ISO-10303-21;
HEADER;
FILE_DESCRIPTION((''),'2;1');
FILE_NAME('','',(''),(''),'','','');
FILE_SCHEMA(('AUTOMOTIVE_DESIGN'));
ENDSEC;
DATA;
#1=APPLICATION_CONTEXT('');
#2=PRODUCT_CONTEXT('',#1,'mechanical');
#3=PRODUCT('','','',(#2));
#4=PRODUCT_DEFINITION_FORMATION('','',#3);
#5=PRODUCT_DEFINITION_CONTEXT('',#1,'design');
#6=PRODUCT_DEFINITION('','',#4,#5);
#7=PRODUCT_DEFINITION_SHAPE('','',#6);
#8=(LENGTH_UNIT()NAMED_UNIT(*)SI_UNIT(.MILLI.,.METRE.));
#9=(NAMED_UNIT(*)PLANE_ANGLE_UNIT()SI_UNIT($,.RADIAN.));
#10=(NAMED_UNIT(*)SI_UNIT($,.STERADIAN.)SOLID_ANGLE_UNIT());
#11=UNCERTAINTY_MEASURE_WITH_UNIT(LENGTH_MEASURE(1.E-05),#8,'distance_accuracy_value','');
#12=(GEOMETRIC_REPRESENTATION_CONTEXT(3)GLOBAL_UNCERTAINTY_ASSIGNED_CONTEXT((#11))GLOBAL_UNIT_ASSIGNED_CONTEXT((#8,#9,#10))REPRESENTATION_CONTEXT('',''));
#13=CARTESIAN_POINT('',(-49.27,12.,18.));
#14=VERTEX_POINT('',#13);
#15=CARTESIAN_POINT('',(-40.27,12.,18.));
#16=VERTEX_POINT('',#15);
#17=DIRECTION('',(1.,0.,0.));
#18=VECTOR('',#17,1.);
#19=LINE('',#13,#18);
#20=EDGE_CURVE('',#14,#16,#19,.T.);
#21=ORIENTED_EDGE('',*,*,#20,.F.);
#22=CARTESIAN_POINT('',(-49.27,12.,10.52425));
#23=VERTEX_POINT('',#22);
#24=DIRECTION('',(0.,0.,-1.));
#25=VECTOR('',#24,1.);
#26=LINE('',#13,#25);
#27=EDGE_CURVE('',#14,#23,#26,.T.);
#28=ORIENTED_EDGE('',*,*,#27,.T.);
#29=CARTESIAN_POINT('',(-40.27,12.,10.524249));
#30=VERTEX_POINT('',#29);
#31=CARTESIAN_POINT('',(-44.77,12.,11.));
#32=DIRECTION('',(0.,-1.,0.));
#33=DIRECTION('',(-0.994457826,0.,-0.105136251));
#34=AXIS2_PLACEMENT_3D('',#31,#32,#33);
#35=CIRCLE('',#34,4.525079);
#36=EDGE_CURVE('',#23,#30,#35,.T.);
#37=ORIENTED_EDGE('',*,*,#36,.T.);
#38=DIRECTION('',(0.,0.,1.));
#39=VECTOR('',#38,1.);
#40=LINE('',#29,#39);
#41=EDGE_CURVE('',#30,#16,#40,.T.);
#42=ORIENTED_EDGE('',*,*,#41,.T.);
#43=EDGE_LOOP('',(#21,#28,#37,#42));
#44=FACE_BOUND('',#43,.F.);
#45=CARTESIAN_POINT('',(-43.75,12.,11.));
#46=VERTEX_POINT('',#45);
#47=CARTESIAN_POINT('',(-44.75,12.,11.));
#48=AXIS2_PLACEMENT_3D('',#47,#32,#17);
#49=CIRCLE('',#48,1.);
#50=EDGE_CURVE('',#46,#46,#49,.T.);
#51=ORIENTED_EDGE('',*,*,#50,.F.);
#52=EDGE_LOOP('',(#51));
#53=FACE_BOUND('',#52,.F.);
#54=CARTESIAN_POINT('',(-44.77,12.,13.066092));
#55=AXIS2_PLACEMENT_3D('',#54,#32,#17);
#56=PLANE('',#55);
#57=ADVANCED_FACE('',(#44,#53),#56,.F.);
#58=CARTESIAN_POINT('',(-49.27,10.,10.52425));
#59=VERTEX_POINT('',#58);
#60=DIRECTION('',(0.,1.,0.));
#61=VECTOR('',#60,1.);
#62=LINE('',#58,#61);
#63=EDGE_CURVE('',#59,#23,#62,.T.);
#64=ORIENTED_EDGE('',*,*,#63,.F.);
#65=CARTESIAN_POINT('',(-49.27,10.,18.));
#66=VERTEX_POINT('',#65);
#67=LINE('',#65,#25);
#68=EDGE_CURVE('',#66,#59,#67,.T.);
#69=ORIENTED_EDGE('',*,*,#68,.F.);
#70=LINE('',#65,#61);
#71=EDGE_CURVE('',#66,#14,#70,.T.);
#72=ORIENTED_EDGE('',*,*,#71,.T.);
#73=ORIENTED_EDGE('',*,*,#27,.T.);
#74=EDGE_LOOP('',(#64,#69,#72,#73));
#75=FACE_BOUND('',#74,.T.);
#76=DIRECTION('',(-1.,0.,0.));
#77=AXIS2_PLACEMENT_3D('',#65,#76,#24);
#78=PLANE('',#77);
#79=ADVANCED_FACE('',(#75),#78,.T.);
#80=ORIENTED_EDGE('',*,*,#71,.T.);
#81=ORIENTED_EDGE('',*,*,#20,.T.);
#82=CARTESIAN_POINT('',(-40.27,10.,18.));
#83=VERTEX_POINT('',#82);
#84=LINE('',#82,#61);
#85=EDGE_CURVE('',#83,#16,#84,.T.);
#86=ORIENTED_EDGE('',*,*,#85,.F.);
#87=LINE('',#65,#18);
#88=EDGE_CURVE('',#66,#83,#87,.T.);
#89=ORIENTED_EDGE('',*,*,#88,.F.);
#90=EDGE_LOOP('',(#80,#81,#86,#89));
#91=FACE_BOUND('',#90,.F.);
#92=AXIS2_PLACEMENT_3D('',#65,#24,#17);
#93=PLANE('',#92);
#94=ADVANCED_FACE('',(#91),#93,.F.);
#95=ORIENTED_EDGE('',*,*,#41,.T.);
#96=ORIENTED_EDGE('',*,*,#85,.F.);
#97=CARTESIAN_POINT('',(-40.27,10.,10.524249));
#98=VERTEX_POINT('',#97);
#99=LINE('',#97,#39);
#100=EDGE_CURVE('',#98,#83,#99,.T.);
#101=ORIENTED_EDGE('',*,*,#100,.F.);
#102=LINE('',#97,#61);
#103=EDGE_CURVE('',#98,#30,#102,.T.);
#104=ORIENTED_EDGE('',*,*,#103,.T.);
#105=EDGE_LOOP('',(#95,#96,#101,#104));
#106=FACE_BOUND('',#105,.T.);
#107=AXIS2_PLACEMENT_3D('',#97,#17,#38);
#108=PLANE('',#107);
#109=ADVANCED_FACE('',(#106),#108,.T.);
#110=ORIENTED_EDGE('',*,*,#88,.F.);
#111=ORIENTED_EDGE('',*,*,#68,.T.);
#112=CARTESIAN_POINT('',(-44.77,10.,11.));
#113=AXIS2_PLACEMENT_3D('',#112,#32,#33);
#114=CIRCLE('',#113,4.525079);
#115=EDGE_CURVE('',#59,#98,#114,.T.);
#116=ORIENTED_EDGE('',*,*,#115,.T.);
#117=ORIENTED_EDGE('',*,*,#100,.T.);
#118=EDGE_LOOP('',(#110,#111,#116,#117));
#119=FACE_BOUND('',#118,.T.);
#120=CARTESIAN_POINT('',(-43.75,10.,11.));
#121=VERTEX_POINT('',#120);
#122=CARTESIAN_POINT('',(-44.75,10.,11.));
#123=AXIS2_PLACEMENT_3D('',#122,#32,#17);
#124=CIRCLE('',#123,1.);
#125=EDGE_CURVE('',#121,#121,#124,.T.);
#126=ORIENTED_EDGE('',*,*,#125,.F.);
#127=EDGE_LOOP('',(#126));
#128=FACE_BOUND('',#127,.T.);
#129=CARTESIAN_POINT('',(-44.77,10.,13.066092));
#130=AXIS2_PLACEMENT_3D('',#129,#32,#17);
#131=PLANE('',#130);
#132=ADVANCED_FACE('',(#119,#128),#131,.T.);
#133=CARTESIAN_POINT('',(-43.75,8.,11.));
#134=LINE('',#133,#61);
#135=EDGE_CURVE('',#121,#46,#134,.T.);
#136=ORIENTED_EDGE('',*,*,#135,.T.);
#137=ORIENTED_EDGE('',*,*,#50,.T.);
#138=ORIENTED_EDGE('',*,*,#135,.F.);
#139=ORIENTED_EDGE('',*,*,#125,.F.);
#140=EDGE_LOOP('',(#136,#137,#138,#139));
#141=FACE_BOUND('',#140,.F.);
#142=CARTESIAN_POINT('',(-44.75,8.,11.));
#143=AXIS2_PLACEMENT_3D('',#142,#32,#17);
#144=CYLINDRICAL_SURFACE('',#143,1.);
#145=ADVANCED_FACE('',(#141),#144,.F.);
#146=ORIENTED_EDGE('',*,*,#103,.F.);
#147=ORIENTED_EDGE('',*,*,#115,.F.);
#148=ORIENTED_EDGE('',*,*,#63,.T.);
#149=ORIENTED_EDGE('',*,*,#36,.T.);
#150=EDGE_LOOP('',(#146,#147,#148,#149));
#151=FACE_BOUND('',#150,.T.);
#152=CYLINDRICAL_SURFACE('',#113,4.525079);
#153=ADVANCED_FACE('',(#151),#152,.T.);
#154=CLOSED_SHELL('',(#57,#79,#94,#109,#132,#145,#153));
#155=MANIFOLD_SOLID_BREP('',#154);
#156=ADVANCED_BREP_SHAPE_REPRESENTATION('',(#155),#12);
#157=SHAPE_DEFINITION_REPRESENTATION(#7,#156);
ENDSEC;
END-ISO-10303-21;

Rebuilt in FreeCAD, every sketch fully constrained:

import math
import FreeCAD as App
import Part
import Sketcher

doc = App.newDocument("Part")
params = doc.addObject("Spreadsheet::Sheet", "Params")
for row, (alias, value) in enumerate([
    ("sketch1_diameter", "2 mm"),
    ("pad1_length", "5 mm"),
    ("sketch2_width", "9 mm"),
    ("pad2_length", "2 mm"),
], start=1):
    params.set(f"A{row}", alias)
    params.set(f"B{row}", "=" + value)
    params.setAlias(f"B{row}", alias)

body = doc.addObject("PartDesign::Body", "Body")

# Sketch on XY plane
sketch1 = doc.addObject("Sketcher::SketchObject", "Sketch")
body.addObject(sketch1)
sketch1.AttachmentSupport = (doc.XY_Plane, [""])
sketch1.MapMode = "FlatFace"
sketch1.addGeometry(Part.Circle(App.Vector(-45, 11, 0), App.Vector(0, 0, 1), 1), False)
sketch1.addConstraint(Sketcher.Constraint("Diameter", 0, 2.0))
sketch1.addConstraint(Sketcher.Constraint("DistanceX", 0, 3, -1, 1, 45.0))
sketch1.addConstraint(Sketcher.Constraint("DistanceY", -1, 1, 0, 3, 11.0))
sketch1.setExpression("Constraints[0]", "Params.sketch1_diameter")
pad1 = doc.addObject("PartDesign::Pad", "Pad")
body.addObject(pad1)
pad1.Profile = sketch1
pad1.setExpression("Length", "Params.pad1_length")
pad1.Reversed = True
body2 = doc.addObject("PartDesign::Body", "Body001")
doc.recompute()

body.Placement = App.Placement(App.Vector(0, 0, 0), App.Rotation(App.Vector(1, 0, 0), 90))
boolean = doc.addObject("PartDesign::Boolean", "Boolean")
body2.addObject(boolean)
boolean.Type = "Fuse"
boolean.addObjects([body])
body3 = doc.addObject("PartDesign::Body", "Body002")
doc.recompute()

body2.Placement = App.Placement(App.Vector(0.25, 0, 0), App.Rotation(App.Vector(0, 0, 1), 0))
boolean2 = doc.addObject("PartDesign::Boolean", "Boolean001")
body3.addObject(boolean2)
boolean2.Type = "Fuse"
boolean2.addObjects([body2])
body4 = doc.addObject("PartDesign::Body", "Body003")
doc.recompute()

body3.Placement = App.Placement(App.Vector(0, 8, 0), App.Rotation(App.Vector(0, 0, 1), 0))
boolean3 = doc.addObject("PartDesign::Boolean", "Boolean002")
body4.addObject(boolean3)
boolean3.Type = "Fuse"
boolean3.addObjects([body3])
body5 = doc.addObject("PartDesign::Body", "Body004")

# Sketch on XY plane
sketch2 = doc.addObject("Sketcher::SketchObject", "Sketch001")
body5.addObject(sketch2)
sketch2.AttachmentSupport = (doc.getObject("XY_Plane004"), [""])
sketch2.MapMode = "FlatFace"
sketch2.addGeometry(Part.ArcOfCircle(Part.Circle(App.Vector(-44.5, 11, 0), App.Vector(0, 0, 1), 4.5), math.radians(-174), math.radians(-6)), False)
sketch2.addGeometry(Part.LineSegment(App.Vector(-40, 10.5, 0), App.Vector(-40, 18, 0)), False)
sketch2.addGeometry(Part.LineSegment(App.Vector(-40, 18, 0), App.Vector(-49, 18, 0)), False)
sketch2.addGeometry(Part.LineSegment(App.Vector(-49, 18, 0), App.Vector(-49, 10.5, 0)), False)
sketch2.addConstraint(Sketcher.Constraint("Coincident", 0, 2, 1, 1))
sketch2.addConstraint(Sketcher.Constraint("Coincident", 1, 2, 2, 1))
sketch2.addConstraint(Sketcher.Constraint("Coincident", 2, 2, 3, 1))
sketch2.addConstraint(Sketcher.Constraint("Coincident", 3, 2, 0, 1))
sketch2.addConstraint(Sketcher.Constraint("Vertical", 1))
sketch2.addConstraint(Sketcher.Constraint("Horizontal", 2))
sketch2.addConstraint(Sketcher.Constraint("Vertical", 3))
sketch2.addConstraint(Sketcher.Constraint("Horizontal", 0, 2, 3, 2))
sketch2.addConstraint(Sketcher.Constraint("DistanceX", 2, 2, 2, 1, 9.0))
sketch2.addConstraint(Sketcher.Constraint("DistanceY", -1, 1, 0, 3, 11.0))
sketch2.addConstraint(Sketcher.Constraint("DistanceX", 0, 2, -1, 1, 40.0))
sketch2.addConstraint(Sketcher.Constraint("DistanceY", -1, 1, 1, 2, 18.0))
sketch2.addConstraint(Sketcher.Constraint("Radius", 0, 4.525079))
sketch2.setExpression("Constraints[8]", "Params.sketch2_width")
pad2 = doc.addObject("PartDesign::Pad", "Pad001")
body5.addObject(pad2)
pad2.Profile = sketch2
pad2.setExpression("Length", "Params.pad2_length")
pad2.Reversed = True
body6 = doc.addObject("PartDesign::Body", "Body005")
doc.recompute()

body5.Placement = App.Placement(App.Vector(0, 0, 0), App.Rotation(App.Vector(1, 0, 0), 90))
boolean4 = doc.addObject("PartDesign::Boolean", "Boolean003")
body6.addObject(boolean4)
boolean4.Type = "Fuse"
boolean4.addObjects([body5])
body7 = doc.addObject("PartDesign::Body", "Body006")
doc.recompute()

body6.Placement = App.Placement(App.Vector(-0.27, 10, 0), App.Rotation(App.Vector(0, 0, 1), 0))
boolean5 = doc.addObject("PartDesign::Boolean", "Boolean004")
body7.addObject(boolean5)
boolean5.Type = "Fuse"
boolean5.addObjects([body6])
doc.recompute()

boolean6 = doc.addObject("PartDesign::Boolean", "Boolean005")
body7.addObject(boolean6)
boolean6.Type = "Cut"
boolean6.addObjects([body4])

doc.recompute()
